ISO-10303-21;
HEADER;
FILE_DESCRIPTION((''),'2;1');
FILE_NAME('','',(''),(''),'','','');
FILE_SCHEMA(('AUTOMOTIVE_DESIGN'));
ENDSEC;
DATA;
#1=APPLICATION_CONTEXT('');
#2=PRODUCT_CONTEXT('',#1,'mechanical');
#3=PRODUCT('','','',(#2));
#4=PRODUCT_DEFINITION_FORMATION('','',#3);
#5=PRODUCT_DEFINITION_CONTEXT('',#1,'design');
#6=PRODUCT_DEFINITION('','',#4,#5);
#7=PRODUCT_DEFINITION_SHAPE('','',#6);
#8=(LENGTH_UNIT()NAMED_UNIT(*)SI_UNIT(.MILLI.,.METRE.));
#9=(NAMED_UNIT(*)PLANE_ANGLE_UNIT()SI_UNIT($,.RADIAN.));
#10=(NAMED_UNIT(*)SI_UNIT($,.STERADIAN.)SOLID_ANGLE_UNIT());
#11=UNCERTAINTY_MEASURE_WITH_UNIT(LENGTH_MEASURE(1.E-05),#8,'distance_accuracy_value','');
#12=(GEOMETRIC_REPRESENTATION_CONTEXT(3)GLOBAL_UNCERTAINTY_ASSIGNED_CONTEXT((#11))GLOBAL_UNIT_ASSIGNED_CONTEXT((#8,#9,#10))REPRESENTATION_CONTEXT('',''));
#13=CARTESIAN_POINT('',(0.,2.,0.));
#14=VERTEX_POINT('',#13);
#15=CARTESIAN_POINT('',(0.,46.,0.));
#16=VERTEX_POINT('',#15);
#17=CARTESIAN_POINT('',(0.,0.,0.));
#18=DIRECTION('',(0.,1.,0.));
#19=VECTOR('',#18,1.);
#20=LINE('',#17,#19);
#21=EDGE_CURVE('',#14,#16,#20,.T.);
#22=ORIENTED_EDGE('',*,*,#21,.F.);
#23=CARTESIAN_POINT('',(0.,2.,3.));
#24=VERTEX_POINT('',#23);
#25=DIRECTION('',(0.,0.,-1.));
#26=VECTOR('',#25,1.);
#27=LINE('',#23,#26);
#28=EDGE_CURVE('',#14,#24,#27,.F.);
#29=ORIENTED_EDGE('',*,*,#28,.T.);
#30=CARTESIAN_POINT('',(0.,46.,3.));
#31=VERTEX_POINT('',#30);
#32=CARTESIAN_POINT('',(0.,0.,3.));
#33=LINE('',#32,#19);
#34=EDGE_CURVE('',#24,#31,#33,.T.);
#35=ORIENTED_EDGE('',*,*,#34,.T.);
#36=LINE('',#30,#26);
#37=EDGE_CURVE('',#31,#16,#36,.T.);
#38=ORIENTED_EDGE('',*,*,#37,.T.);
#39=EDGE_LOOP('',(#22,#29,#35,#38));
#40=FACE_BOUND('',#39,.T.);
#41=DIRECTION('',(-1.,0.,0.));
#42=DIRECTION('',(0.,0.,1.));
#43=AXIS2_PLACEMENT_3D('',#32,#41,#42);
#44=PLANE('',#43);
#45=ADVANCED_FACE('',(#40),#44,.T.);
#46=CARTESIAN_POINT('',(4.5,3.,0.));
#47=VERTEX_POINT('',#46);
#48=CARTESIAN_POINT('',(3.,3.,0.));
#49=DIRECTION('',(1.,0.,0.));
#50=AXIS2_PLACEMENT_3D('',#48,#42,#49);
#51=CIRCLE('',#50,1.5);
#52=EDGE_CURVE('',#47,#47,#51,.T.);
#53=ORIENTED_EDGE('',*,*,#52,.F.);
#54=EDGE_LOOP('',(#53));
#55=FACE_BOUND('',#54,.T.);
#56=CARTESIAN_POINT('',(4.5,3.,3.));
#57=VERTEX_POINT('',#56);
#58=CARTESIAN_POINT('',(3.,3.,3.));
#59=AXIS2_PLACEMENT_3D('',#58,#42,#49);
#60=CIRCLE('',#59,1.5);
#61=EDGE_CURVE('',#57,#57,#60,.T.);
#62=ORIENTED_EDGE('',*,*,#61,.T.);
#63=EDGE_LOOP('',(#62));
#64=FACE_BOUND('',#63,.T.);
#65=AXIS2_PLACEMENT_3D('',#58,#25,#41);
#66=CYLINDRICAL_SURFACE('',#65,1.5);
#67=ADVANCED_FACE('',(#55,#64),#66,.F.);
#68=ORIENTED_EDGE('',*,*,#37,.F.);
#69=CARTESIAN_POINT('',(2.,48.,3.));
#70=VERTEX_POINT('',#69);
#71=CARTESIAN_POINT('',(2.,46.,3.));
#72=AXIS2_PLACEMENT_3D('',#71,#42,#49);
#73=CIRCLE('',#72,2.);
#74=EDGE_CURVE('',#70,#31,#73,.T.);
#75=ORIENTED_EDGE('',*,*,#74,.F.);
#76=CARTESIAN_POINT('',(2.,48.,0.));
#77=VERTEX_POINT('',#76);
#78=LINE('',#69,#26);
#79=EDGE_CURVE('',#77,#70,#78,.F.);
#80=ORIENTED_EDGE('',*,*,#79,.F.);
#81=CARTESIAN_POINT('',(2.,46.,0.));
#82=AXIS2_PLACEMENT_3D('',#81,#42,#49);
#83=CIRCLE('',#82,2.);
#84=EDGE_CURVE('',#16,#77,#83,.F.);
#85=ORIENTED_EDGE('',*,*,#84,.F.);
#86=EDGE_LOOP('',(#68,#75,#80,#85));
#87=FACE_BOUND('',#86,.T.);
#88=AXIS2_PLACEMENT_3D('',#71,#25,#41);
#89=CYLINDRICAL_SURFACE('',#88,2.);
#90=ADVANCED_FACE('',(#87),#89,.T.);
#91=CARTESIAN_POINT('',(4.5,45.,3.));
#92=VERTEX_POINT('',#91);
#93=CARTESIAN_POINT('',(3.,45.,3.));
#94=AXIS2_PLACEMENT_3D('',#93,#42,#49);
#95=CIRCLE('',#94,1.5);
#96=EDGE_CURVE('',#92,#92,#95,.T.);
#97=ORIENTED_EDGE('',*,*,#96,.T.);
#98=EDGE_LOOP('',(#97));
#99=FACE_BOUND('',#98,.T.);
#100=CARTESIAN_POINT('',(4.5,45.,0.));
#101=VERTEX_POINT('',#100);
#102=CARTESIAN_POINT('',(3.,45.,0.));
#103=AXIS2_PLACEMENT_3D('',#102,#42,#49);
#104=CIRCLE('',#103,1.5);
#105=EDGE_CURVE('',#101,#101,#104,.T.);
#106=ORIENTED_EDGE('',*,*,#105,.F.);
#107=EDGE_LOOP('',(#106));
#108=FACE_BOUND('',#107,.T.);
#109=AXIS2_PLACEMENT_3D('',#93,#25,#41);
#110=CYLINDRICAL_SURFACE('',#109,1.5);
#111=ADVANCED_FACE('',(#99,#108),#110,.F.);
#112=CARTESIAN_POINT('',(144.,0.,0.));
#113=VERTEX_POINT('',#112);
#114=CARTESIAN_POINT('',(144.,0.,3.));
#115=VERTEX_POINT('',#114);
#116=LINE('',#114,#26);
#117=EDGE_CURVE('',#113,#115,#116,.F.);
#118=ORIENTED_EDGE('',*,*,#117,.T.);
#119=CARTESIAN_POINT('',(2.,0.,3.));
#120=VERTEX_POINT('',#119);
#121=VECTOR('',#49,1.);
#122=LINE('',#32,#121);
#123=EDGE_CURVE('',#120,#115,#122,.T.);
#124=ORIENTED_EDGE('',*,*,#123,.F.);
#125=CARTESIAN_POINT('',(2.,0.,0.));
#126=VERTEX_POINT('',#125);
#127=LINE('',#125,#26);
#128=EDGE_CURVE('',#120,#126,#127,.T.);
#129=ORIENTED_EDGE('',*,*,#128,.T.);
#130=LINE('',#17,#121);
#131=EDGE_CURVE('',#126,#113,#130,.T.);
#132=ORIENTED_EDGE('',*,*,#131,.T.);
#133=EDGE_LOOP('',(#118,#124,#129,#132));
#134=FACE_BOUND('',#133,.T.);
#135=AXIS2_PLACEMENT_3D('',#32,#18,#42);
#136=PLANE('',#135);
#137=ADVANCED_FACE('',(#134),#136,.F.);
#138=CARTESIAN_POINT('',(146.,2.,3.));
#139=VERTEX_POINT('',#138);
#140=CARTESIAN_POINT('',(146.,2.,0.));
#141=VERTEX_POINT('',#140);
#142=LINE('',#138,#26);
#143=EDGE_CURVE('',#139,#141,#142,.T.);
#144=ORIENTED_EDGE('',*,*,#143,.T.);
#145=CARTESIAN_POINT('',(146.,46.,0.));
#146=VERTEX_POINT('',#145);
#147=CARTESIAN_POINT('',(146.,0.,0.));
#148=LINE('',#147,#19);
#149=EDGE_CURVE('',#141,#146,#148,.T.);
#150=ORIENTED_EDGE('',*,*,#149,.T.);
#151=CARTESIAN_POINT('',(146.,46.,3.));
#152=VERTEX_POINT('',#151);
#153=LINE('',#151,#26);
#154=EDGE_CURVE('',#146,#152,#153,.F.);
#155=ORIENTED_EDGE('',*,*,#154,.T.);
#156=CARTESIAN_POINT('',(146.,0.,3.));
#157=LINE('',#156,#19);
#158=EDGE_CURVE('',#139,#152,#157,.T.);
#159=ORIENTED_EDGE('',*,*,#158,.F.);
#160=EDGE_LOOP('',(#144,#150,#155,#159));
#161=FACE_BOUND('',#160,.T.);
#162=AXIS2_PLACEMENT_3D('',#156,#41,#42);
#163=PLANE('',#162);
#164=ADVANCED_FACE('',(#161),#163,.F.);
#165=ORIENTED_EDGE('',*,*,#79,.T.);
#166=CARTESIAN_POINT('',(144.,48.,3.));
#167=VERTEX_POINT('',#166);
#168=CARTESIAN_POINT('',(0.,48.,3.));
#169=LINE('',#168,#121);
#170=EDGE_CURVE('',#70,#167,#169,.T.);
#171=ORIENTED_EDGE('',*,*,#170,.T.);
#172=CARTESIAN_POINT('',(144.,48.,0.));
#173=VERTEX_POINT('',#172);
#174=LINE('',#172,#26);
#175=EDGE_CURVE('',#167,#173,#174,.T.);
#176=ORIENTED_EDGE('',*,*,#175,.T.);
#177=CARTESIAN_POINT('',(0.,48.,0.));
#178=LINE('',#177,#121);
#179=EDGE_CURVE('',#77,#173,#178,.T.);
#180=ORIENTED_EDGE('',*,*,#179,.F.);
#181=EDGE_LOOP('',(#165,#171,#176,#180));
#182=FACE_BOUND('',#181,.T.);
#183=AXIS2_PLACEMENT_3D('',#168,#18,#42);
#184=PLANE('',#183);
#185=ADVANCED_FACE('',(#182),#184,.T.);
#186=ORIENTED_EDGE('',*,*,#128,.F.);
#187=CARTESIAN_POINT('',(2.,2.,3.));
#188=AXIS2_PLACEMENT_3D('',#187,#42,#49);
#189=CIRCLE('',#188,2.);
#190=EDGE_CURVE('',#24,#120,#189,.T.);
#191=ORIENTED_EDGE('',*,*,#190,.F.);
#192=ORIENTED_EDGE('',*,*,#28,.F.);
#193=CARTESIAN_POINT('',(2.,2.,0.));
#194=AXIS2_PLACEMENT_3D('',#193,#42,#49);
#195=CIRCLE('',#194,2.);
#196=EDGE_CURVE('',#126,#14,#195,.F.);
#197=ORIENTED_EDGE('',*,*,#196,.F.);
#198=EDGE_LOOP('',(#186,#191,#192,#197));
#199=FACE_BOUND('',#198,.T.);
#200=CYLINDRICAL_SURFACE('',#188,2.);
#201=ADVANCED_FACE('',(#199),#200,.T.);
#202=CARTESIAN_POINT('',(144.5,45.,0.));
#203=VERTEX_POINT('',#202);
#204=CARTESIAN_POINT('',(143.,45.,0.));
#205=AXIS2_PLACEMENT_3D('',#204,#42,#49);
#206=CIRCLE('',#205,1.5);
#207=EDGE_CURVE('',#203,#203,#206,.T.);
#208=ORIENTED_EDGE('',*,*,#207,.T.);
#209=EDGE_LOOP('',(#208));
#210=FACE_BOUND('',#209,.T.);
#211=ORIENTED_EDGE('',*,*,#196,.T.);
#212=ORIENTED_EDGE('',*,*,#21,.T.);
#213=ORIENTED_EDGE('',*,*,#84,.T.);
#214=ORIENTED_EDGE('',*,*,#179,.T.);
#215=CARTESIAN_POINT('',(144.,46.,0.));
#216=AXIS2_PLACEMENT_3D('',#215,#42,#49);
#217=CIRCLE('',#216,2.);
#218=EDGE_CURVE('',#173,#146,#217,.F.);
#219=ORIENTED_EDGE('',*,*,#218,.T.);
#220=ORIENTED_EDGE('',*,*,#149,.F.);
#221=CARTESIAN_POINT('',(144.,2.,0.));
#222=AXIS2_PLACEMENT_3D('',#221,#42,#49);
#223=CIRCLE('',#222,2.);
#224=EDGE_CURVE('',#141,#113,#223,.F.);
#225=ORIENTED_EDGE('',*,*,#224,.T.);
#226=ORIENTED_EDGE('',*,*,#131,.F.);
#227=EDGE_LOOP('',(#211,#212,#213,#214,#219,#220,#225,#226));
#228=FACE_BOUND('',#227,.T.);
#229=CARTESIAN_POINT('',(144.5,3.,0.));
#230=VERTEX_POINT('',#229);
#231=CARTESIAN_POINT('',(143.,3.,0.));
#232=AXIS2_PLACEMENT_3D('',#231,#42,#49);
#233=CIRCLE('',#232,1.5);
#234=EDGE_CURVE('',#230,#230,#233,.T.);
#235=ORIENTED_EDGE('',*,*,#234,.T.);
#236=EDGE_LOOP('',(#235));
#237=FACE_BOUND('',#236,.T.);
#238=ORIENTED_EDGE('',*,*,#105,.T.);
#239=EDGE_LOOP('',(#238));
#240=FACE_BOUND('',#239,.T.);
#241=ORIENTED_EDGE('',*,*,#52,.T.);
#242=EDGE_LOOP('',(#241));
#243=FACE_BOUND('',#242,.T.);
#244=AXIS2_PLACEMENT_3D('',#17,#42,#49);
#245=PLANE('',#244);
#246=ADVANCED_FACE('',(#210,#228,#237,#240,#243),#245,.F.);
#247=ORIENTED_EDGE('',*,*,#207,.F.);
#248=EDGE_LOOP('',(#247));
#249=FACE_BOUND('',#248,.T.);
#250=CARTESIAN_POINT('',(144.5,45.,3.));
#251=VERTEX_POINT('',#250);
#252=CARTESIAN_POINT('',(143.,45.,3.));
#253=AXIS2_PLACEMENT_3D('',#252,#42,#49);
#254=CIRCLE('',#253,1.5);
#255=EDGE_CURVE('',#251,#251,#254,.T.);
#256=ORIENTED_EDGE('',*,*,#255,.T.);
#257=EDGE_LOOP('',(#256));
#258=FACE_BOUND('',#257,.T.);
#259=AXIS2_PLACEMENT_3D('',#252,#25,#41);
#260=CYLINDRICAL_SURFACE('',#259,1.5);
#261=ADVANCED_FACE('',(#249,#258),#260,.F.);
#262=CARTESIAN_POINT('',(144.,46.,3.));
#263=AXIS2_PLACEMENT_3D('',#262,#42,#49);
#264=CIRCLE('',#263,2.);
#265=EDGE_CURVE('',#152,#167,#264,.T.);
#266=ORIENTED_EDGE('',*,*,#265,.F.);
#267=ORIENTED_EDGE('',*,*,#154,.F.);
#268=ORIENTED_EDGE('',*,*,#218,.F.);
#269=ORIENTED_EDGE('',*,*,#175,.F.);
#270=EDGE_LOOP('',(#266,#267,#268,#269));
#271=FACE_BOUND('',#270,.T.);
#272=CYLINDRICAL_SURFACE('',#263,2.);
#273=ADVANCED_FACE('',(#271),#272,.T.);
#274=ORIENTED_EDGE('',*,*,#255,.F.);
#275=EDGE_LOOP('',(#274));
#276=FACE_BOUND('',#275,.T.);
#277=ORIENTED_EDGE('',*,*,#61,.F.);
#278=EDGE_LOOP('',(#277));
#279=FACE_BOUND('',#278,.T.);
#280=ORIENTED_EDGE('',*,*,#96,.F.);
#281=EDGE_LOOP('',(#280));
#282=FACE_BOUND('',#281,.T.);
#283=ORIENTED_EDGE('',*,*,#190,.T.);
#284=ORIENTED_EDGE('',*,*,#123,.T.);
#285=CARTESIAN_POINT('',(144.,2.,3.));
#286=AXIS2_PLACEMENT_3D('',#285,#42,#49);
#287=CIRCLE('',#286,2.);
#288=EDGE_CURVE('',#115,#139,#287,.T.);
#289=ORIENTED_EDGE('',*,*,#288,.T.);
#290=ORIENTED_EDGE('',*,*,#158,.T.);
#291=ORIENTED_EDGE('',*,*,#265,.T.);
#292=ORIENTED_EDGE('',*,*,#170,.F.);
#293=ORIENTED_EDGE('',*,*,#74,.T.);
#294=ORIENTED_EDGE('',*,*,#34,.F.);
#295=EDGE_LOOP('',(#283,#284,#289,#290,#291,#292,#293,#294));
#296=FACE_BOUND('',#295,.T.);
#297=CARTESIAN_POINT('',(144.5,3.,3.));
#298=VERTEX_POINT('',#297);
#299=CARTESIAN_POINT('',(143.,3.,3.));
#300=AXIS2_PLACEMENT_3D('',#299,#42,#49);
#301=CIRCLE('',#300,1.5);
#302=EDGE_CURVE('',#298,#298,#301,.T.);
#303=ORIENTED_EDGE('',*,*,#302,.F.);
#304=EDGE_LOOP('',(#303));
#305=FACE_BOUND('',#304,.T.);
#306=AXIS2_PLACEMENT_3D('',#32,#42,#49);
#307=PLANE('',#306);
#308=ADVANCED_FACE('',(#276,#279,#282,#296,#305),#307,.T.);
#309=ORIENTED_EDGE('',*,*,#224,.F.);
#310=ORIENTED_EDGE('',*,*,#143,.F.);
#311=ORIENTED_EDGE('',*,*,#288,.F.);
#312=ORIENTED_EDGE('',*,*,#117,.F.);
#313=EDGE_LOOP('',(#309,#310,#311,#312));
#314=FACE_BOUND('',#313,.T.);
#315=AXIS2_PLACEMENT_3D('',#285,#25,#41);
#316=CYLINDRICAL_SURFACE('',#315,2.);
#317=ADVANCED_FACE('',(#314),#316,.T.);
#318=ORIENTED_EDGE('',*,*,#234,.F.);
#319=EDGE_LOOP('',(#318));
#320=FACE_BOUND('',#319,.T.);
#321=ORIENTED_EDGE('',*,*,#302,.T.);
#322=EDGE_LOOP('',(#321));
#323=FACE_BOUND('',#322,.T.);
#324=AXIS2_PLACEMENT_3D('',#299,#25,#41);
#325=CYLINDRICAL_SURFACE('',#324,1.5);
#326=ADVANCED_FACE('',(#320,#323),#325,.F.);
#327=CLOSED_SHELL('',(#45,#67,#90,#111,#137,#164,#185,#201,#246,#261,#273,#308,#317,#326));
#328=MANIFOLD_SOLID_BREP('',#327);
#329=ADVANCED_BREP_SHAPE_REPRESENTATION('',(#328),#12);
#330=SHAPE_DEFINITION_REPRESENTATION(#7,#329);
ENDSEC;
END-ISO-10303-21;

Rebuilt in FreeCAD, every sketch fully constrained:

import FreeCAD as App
import Part
import Sketcher
from FreeCAD import Vector
Q = App.Units.Quantity


def edges_at(feature, points):
    """Names of the edges that pass closest to the given points."""
    edges = feature.Shape.Edges
    near = lambda p: min(range(len(edges)), key=lambda i: edges[i].distToShape(Part.Vertex(*p))[0])
    return sorted({f"Edge{near(p) + 1}" for p in points})

doc = App.newDocument("Part")
body = doc.addObject("PartDesign::Body", "Body")

sketch1 = body.newObject("Sketcher::SketchObject", "Sketch")
sketch1.AttachmentSupport = (doc.getObject("XY_Plane"), [""])
sketch1.MapMode = "FlatFace"
sketch1.addGeometry(Part.LineSegment(Vector(0, 48, 0), Vector(0, 0, 0)), False)
sketch1.addGeometry(Part.LineSegment(Vector(0, 0, 0), Vector(146, 0, 0)), False)
sketch1.addGeometry(Part.LineSegment(Vector(146, 0, 0), Vector(146, 48, 0)), False)
sketch1.addGeometry(Part.LineSegment(Vector(146, 48, 0), Vector(0, 48, 0)), False)
sketch1.addGeometry(Part.Circle(Vector(3, 3, 0), Vector(0, 0, 1), 1.5), False)
sketch1.addGeometry(Part.Circle(Vector(143, 3, 0), Vector(0, 0, 1), 1.5), False)
sketch1.addGeometry(Part.Circle(Vector(3, 45, 0), Vector(0, 0, 1), 1.5), False)
sketch1.addGeometry(Part.Circle(Vector(143, 45, 0), Vector(0, 0, 1), 1.5), False)
sketch1.addConstraint(Sketcher.Constraint("Coincident", 0, 2, 1, 1))
sketch1.addConstraint(Sketcher.Constraint("Coincident", 1, 2, 2, 1))
sketch1.addConstraint(Sketcher.Constraint("Coincident", 2, 2, 3, 1))
sketch1.addConstraint(Sketcher.Constraint("Coincident", 3, 2, 0, 1))
sketch1.addConstraint(Sketcher.Constraint("Vertical", 0))
sketch1.addConstraint(Sketcher.Constraint("Horizontal", 1))
sketch1.addConstraint(Sketcher.Constraint("Vertical", 2))
sketch1.addConstraint(Sketcher.Constraint("Horizontal", 3))
sketch1.addConstraint(Sketcher.Constraint("Coincident", 0, 2, -1, 1))
sketch1.addConstraint(Sketcher.Constraint("Equal", 4, 5))
sketch1.addConstraint(Sketcher.Constraint("Equal", 5, 6))
sketch1.addConstraint(Sketcher.Constraint("Equal", 6, 7))
sketch1.addConstraint(Sketcher.Constraint("Horizontal", 4, 3, 5, 3))
sketch1.addConstraint(Sketcher.Constraint("Horizontal", 6, 3, 7, 3))
sketch1.addConstraint(Sketcher.Constraint("Vertical", 4, 3, 6, 3))
sketch1.addConstraint(Sketcher.Constraint("Vertical", 5, 3, 7, 3))
sketch1.addConstraint(Sketcher.Constraint("Diameter", 4, Q("3 mm")))
sketch1.addConstraint(Sketcher.Constraint("DistanceX", 1, 1, 1, 2, Q("146 mm")))
sketch1.addConstraint(Sketcher.Constraint("DistanceY", 0, 2, 0, 1, Q("48 mm")))
sketch1.addConstraint(Sketcher.Constraint("DistanceX", -1, 1, 4, 3, Q("3 mm")))
sketch1.addConstraint(Sketcher.Constraint("DistanceY", -1, 1, 4, 3, Q("3 mm")))
sketch1.addConstraint(Sketcher.Constraint("DistanceX", -1, 1, 5, 3, Q("143 mm")))
sketch1.addConstraint(Sketcher.Constraint("DistanceY", -1, 1, 6, 3, Q("45 mm")))
pad1 = body.newObject("PartDesign::Pad", "Pad")
pad1.Profile = sketch1
pad1.Length = 3
doc.recompute()

fillet = body.newObject("PartDesign::Fillet", "Fillet")
fillet.Base = (pad1, edges_at(pad1, [
    (0, 0, 1.5),
    (0, 48, 1.5),
    (146, 48, 1.5),
    (146, 0, 1.5),
]))
fillet.Radius = 2

doc.recompute()
